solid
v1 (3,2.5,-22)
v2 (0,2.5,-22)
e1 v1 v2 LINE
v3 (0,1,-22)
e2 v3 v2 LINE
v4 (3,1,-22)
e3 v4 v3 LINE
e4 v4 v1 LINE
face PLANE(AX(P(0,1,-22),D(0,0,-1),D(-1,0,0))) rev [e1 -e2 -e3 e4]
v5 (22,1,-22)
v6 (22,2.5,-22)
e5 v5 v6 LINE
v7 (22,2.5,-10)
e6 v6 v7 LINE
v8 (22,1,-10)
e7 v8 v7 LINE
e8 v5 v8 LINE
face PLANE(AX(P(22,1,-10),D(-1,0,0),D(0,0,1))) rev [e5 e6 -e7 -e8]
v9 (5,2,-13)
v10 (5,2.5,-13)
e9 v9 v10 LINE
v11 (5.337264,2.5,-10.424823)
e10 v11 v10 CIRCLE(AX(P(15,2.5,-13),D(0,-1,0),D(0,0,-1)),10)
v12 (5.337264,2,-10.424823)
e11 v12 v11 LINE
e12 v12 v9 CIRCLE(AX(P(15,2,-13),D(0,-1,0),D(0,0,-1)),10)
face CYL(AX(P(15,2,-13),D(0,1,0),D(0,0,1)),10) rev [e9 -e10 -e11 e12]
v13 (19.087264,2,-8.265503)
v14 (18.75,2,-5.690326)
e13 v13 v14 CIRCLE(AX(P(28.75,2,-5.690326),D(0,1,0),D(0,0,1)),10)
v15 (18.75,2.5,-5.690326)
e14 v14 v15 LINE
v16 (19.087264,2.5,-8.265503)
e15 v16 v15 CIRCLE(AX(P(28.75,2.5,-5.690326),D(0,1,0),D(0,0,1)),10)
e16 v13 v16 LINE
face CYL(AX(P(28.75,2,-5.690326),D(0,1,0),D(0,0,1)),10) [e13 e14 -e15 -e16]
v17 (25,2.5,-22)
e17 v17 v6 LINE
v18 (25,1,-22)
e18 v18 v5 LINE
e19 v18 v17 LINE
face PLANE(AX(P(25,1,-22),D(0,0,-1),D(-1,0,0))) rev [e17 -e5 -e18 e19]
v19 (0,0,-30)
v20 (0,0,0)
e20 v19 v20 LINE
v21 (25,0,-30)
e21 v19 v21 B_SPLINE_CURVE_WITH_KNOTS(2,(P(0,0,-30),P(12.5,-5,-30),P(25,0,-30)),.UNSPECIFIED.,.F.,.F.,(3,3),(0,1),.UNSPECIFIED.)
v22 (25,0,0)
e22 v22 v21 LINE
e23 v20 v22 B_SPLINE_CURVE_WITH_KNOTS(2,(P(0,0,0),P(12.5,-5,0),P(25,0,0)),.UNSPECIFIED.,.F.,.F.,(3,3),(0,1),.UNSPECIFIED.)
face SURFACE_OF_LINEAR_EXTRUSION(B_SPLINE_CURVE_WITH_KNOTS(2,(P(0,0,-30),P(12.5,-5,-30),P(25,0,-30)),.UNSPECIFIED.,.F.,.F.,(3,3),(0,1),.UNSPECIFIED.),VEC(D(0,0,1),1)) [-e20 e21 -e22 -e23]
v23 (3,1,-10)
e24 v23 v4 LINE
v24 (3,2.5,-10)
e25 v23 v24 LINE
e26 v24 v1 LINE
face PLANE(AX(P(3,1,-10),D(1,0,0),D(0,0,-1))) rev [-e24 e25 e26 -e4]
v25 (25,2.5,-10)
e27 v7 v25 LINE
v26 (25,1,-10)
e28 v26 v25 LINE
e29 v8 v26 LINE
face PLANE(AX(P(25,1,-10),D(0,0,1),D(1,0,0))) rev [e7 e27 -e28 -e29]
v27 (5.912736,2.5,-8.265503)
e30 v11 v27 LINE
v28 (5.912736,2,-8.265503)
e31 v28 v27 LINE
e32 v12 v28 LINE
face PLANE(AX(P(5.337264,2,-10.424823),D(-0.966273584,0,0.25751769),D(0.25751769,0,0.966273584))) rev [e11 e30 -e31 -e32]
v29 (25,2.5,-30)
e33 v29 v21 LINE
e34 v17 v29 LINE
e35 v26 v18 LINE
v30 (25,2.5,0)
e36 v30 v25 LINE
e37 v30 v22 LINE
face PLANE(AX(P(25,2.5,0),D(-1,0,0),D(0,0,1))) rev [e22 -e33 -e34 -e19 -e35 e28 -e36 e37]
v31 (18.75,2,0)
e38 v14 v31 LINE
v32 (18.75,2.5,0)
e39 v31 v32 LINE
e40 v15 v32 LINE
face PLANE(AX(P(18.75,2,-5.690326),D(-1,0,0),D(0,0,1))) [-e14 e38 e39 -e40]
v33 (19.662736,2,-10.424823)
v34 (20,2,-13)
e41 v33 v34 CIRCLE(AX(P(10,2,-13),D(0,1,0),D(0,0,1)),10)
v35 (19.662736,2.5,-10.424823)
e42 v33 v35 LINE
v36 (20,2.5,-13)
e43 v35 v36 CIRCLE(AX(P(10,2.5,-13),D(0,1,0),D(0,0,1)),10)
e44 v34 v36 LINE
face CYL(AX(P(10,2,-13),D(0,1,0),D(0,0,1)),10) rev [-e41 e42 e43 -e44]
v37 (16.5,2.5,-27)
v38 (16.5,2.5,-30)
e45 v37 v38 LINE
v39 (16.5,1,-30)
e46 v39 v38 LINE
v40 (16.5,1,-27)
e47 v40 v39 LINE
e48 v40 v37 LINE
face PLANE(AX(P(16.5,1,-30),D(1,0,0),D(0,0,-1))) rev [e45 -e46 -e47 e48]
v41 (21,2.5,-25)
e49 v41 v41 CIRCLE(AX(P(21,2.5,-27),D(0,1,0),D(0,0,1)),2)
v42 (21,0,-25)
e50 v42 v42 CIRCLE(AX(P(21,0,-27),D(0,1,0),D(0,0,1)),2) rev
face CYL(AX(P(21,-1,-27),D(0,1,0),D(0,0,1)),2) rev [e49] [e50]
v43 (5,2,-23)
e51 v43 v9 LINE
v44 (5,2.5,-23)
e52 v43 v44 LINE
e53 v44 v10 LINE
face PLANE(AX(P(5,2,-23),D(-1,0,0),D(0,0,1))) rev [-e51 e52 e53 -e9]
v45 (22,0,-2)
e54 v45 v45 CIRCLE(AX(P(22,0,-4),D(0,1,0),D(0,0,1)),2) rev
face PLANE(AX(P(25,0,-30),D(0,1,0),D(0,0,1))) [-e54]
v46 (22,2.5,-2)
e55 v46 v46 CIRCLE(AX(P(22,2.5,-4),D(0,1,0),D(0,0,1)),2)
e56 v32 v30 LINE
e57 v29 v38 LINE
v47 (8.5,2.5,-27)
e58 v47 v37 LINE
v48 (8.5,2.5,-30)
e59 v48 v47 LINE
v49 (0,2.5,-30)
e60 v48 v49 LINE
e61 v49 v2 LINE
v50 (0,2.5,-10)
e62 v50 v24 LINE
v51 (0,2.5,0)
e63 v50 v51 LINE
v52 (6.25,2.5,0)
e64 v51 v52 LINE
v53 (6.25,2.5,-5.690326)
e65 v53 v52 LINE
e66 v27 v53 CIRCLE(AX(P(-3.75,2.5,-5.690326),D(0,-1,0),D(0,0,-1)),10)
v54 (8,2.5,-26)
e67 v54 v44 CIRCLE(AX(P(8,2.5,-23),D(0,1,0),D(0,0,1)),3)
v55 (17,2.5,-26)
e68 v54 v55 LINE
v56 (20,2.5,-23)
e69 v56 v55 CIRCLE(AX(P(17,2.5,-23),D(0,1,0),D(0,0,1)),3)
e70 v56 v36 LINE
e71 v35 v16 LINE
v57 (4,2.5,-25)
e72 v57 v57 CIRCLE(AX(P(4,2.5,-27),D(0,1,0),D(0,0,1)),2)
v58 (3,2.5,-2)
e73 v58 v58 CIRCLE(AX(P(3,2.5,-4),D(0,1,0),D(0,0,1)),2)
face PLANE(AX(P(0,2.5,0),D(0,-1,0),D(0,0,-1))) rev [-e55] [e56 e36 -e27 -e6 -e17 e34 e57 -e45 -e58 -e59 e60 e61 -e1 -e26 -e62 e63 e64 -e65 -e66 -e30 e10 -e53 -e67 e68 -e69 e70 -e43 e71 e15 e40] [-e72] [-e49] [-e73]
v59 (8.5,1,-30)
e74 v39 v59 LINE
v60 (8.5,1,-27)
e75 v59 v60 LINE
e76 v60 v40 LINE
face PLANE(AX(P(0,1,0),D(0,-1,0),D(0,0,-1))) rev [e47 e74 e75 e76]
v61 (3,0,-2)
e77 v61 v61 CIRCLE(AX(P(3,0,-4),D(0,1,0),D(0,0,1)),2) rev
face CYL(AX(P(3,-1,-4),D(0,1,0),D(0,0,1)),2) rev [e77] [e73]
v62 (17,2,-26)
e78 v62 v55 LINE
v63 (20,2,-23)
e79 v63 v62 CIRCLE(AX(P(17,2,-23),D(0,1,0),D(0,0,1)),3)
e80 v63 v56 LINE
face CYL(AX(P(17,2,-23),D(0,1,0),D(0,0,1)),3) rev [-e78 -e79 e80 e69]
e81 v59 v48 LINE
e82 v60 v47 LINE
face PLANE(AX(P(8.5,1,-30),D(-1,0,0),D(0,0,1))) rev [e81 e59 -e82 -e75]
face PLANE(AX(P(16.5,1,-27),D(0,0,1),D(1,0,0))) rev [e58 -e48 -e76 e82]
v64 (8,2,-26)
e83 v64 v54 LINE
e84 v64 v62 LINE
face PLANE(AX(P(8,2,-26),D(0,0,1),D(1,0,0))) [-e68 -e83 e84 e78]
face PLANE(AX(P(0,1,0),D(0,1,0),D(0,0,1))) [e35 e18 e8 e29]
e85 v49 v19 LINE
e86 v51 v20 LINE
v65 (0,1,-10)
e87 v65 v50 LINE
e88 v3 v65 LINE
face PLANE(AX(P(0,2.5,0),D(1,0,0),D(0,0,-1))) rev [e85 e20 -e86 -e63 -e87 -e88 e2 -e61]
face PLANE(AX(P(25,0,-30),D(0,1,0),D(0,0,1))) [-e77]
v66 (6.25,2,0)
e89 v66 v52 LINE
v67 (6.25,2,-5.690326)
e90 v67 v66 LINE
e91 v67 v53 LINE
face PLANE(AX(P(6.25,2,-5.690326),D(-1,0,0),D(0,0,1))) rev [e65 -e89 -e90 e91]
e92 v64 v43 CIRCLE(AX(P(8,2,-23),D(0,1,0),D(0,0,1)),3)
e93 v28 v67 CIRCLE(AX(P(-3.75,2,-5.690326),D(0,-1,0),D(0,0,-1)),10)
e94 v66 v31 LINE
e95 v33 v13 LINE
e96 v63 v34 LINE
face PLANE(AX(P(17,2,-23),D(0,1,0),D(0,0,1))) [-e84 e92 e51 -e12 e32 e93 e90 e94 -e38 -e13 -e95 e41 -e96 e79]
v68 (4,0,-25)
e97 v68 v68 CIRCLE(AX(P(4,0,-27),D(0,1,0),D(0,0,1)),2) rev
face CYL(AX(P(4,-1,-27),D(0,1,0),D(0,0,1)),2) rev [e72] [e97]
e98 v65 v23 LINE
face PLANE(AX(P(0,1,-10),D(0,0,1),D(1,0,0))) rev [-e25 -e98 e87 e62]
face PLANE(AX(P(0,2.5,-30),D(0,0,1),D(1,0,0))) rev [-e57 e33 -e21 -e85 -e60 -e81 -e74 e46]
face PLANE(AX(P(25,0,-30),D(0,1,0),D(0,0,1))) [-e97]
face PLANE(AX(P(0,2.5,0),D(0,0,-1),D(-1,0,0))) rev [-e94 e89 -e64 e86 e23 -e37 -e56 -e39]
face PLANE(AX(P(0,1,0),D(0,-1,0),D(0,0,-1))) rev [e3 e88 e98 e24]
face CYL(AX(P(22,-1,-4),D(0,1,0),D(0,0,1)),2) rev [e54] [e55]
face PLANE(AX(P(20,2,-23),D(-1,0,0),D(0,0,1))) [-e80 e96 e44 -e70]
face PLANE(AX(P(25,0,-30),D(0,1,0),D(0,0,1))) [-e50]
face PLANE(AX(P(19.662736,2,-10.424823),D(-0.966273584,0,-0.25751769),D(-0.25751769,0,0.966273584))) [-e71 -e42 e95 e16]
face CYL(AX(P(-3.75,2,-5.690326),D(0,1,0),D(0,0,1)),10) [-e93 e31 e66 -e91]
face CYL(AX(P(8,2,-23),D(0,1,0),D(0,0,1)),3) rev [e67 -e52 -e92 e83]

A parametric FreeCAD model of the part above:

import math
import FreeCAD as App
import Part
import Sketcher
from FreeCAD import Vector
Q = App.Units.Quantity

doc = App.newDocument("Part")
body = doc.addObject("PartDesign::Body", "Body")

sketch1 = body.newObject("Sketcher::SketchObject", "Sketch")
sketch1.AttachmentSupport = (doc.getObject("XZ_Plane"), [""])
sketch1.MapMode = "FlatFace"
sketch1.addGeometry(Part.LineSegment(Vector(0, -30, 0), Vector(0, 0, 0)), False)
sketch1.addGeometry(Part.LineSegment(Vector(0, 0, 0), Vector(25, 0, 0)), False)
sketch1.addGeometry(Part.LineSegment(Vector(25, 0, 0), Vector(25, -30, 0)), False)
sketch1.addGeometry(Part.LineSegment(Vector(25, -30, 0), Vector(0, -30, 0)), False)
sketch1.addConstraint(Sketcher.Constraint("Coincident", 0, 2, 1, 1))
sketch1.addConstraint(Sketcher.Constraint("Coincident", 1, 2, 2, 1))
sketch1.addConstraint(Sketcher.Constraint("Coincident", 2, 2, 3, 1))
sketch1.addConstraint(Sketcher.Constraint("Coincident", 3, 2, 0, 1))
sketch1.addConstraint(Sketcher.Constraint("Vertical", 0))
sketch1.addConstraint(Sketcher.Constraint("Horizontal", 1))
sketch1.addConstraint(Sketcher.Constraint("Vertical", 2))
sketch1.addConstraint(Sketcher.Constraint("Horizontal", 3))
sketch1.addConstraint(Sketcher.Constraint("Coincident", 0, 2, -1, 1))
sketch1.addConstraint(Sketcher.Constraint("DistanceX", 1, 1, 1, 2, Q("25 mm")))
sketch1.addConstraint(Sketcher.Constraint("DistanceY", 0, 1, 0, 2, Q("30 mm")))
pad1 = body.newObject("PartDesign::Pad", "Pad")
pad1.Profile = sketch1
pad1.Length = 2.5
pad1.Reversed = True

sketch2 = body.newObject("Sketcher::SketchObject", "Sketch001")
sketch2.AttachmentSupport = (doc.getObject("XZ_Plane"), [""])
sketch2.MapMode = "FlatFace"
sketch2.AttachmentOffset = App.Placement(Vector(0, 0, -2.5), App.Rotation())
sketch2.addGeometry(Part.LineSegment(Vector(17, -26, 0), Vector(8, -26, 0)), False)
sketch2.addGeometry(Part.ArcOfCircle(Part.Circle(Vector(8, -23, 0), Vector(0, 0, 1), 3), math.radians(180), math.radians(270)), False)
sketch2.addGeometry(Part.LineSegment(Vector(5, -23, 0), Vector(5, -13, 0)), False)
sketch2.addGeometry(Part.ArcOfCircle(Part.Circle(Vector(15, -13, 0), Vector(0, 0, 1), 10), math.radians(165.08), math.radians(180)), False)
sketch2.addGeometry(Part.LineSegment(Vector(5.3, -10.4, 0), Vector(5.9, -8.3, 0)), False)
sketch2.addGeometry(Part.ArcOfCircle(Part.Circle(Vector(-3.7, -5.7, 0), Vector(0, 0, 1), 10), math.radians(-14.92), math.radians(0)), False)
sketch2.addGeometry(Part.LineSegment(Vector(6.2, -5.7, 0), Vector(6.2, 0, 0)), False)
sketch2.addGeometry(Part.LineSegment(Vector(6.2, 0, 0), Vector(18.8, 0, 0)), False)
sketch2.addGeometry(Part.LineSegment(Vector(18.8, 0, 0), Vector(18.8, -5.7, 0)), False)
sketch2.addGeometry(Part.ArcOfCircle(Part.Circle(Vector(28.7, -5.7, 0), Vector(0, 0, 1), 10), math.radians(180), math.radians(194.92)), False)
sketch2.addGeometry(Part.LineSegment(Vector(19.1, -8.3, 0), Vector(19.7, -10.4, 0)), False)
sketch2.addGeometry(Part.ArcOfCircle(Part.Circle(Vector(10, -13, 0), Vector(0, 0, 1), 10), math.radians(0), math.radians(14.92)), False)
sketch2.addGeometry(Part.LineSegment(Vector(20, -13, 0), Vector(20, -23, 0)), False)
sketch2.addGeometry(Part.ArcOfCircle(Part.Circle(Vector(17, -23, 0), Vector(0, 0, 1), 3), math.radians(-90), math.radians(0)), False)
sketch2.addConstraint(Sketcher.Constraint("Tangent", 0, 2, 1, 2))
sketch2.addConstraint(Sketcher.Constraint("Tangent", 1, 1, 2, 1))
sketch2.addConstraint(Sketcher.Constraint("Tangent", 2, 2, 3, 2))
sketch2.addConstraint(Sketcher.Constraint("Tangent", 3, 1, 4, 1))
sketch2.addConstraint(Sketcher.Constraint("Tangent", 4, 2, 5, 1))
sketch2.addConstraint(Sketcher.Constraint("Tangent", 5, 2, 6, 1))
sketch2.addConstraint(Sketcher.Constraint("Coincident", 6, 2, 7, 1))
sketch2.addConstraint(Sketcher.Constraint("Coincident", 7, 2, 8, 1))
sketch2.addConstraint(Sketcher.Constraint("Tangent", 8, 2, 9, 1))
sketch2.addConstraint(Sketcher.Constraint("Tangent", 9, 2, 10, 1))
sketch2.addConstraint(Sketcher.Constraint("Tangent", 10, 2, 11, 2))
sketch2.addConstraint(Sketcher.Constraint("Tangent", 11, 1, 12, 1))
sketch2.addConstraint(Sketcher.Constraint("Tangent", 12, 2, 13, 2))
sketch2.addConstraint(Sketcher.Constraint("Tangent", 13, 1, 0, 1))
sketch2.addConstraint(Sketcher.Constraint("Horizontal", 0))
sketch2.addConstraint(Sketcher.Constraint("Vertical", 2))
sketch2.addConstraint(Sketcher.Constraint("Vertical", 6))
sketch2.addConstraint(Sketcher.Constraint("Horizontal", 7))
sketch2.addConstraint(Sketcher.Constraint("Vertical", 8))
sketch2.addConstraint(Sketcher.Constraint("Vertical", 12))
sketch2.addConstraint(Sketcher.Constraint("Equal", 3, 5))
sketch2.addConstraint(Sketcher.Constraint("Equal", 5, 9))
sketch2.addConstraint(Sketcher.Constraint("Equal", 9, 11))
sketch2.addConstraint(Sketcher.Constraint("Equal", 1, 13))
sketch2.addConstraint(Sketcher.Constraint("PointOnObject", 6, 2, -1))
sketch2.addConstraint(Sketcher.Constraint("Horizontal", 5, 3, 9, 3))
sketch2.addConstraint(Sketcher.Constraint("Horizontal", 3, 3, 11, 3))
sketch2.addConstraint(Sketcher.Constraint("Horizontal", 4, 2, 9, 2))
sketch2.addConstraint(Sketcher.Constraint("Radius", 1, Q("3 mm")))
sketch2.addConstraint(Sketcher.Constraint("Radius", 3, Q("10 mm")))
sketch2.addConstraint(Sketcher.Constraint("DistanceX", 0, 2, 0, 1, Q("9 mm")))
sketch2.addConstraint(Sketcher.Constraint("DistanceY", 2, 1, 2, 2, Q("10 mm")))
sketch2.addConstraint(Sketcher.Constraint("DistanceX", 7, 1, 7, 2, Q("12.5 mm")))
sketch2.addConstraint(Sketcher.Constraint("DistanceX", -1, 1, 1, 3, Q("8 mm")))
sketch2.addConstraint(Sketcher.Constraint("DistanceY", 1, 3, -1, 1, Q("23 mm")))
sketch2.addConstraint(Sketcher.Constraint("DistanceY", 6, 1, 6, 2, Q("5.690326 mm")))
pocket1 = body.newObject("PartDesign::Pocket", "Pocket")
pocket1.Profile = sketch2
pocket1.Length = 0.5
pocket1.Reversed = True

sketch3 = body.newObject("Sketcher::SketchObject", "Sketch002")
sketch3.AttachmentSupport = (doc.getObject("XZ_Plane"), [""])
sketch3.MapMode = "FlatFace"
sketch3.AttachmentOffset = App.Placement(Vector(0, 0, -2.5), App.Rotation())
sketch3.addGeometry(Part.Circle(Vector(21, -27, 0), Vector(0, 0, 1), 2), False)
sketch3.addGeometry(Part.Circle(Vector(4, -27, 0), Vector(0, 0, 1), 2), False)
sketch3.addGeometry(Part.Circle(Vector(3, -4, 0), Vector(0, 0, 1), 2), False)
sketch3.addGeometry(Part.Circle(Vector(22, -4, 0), Vector(0, 0, 1), 2), False)
sketch3.addConstraint(Sketcher.Constraint("Equal", 0, 1))
sketch3.addConstraint(Sketcher.Constraint("Equal", 1, 2))
sketch3.addConstraint(Sketcher.Constraint("Equal", 2, 3))
sketch3.addConstraint(Sketcher.Constraint("Horizontal", 0, 3, 1, 3))
sketch3.addConstraint(Sketcher.Constraint("Horizontal", 2, 3, 3, 3))
sketch3.addConstraint(Sketcher.Constraint("Diameter", 0, Q("4 mm")))
sketch3.addConstraint(Sketcher.Constraint("DistanceX", -1, 1, 0, 3, Q("21 mm")))
sketch3.addConstraint(Sketcher.Constraint("DistanceY", 0, 3, -1, 1, Q("27 mm")))
sketch3.addConstraint(Sketcher.Constraint("DistanceX", -1, 1, 1, 3, Q("4 mm")))
sketch3.addConstraint(Sketcher.Constraint("DistanceX", -1, 1, 2, 3, Q("3 mm")))
sketch3.addConstraint(Sketcher.Constraint("DistanceY", 2, 3, -1, 1, Q("4 mm")))
sketch3.addConstraint(Sketcher.Constraint("DistanceX", -1, 1, 3, 3, Q("22 mm")))
pocket2 = body.newObject("PartDesign::Pocket", "Pocket001")
pocket2.Profile = sketch3
pocket2.Length = 3.5
pocket2.Reversed = True

sketch4 = body.newObject("Sketcher::SketchObject", "Sketch003")
sketch4.AttachmentSupport = (doc.getObject("XY_Plane"), [""])
sketch4.MapMode = "FlatFace"
sketch4.addGeometry(Part.LineSegment(Vector(25, 0, 0), Vector(0, 0, 0)), False)
sketch4.addGeometry(Part.BSplineCurve([Vector(25, 0, 0), Vector(12.5, -5, 0), Vector(0, 0, 0)], [3, 3], [0, 1], False, 2, [1, 1, 1], False), False)
sketch4.addConstraint(Sketcher.Constraint("Block", 1))
sketch4.addConstraint(Sketcher.Constraint("Coincident", 0, 1, 1, 1))
sketch4.addConstraint(Sketcher.Constraint("Coincident", 1, 2, 0, 2))
pad2 = body.newObject("PartDesign::Pad", "Pad001")
pad2.Profile = sketch4
pad2.Length = 30
pad2.Reversed = True

sketch5 = body.newObject("Sketcher::SketchObject", "Sketch004")
sketch5.AttachmentSupport = (doc.getObject("XZ_Plane"), [""])
sketch5.MapMode = "FlatFace"
sketch5.AttachmentOffset = App.Placement(Vector(0, 0, -2.5), App.Rotation())
sketch5.addGeometry(Part.LineSegment(Vector(8.5, -30, 0), Vector(8.5, -27, 0)), False)
sketch5.addGeometry(Part.LineSegment(Vector(8.5, -27, 0), Vector(16.5, -27, 0)), False)
sketch5.addGeometry(Part.LineSegment(Vector(16.5, -27, 0), Vector(16.5, -30, 0)), False)
sketch5.addGeometry(Part.LineSegment(Vector(16.5, -30, 0), Vector(8.5, -30, 0)), False)
sketch5.addGeometry(Part.LineSegment(Vector(22, -22, 0), Vector(22, -10, 0)), False)
sketch5.addGeometry(Part.LineSegment(Vector(22, -10, 0), Vector(25, -10, 0)), False)
sketch5.addGeometry(Part.LineSegment(Vector(25, -10, 0), Vector(25, -22, 0)), False)
sketch5.addGeometry(Part.LineSegment(Vector(25, -22, 0), Vector(22, -22, 0)), False)
sketch5.addGeometry(Part.LineSegment(Vector(0, -22, 0), Vector(0, -10, 0)), False)
sketch5.addGeometry(Part.LineSegment(Vector(0, -10, 0), Vector(3, -10, 0)), False)
sketch5.addGeometry(Part.LineSegment(Vector(3, -10, 0), Vector(3, -22, 0)), False)
sketch5.addGeometry(Part.LineSegment(Vector(3, -22, 0), Vector(0, -22, 0)), False)
sketch5.addConstraint(Sketcher.Constraint("Coincident", 0, 2, 1, 1))
sketch5.addConstraint(Sketcher.Constraint("Coincident", 1, 2, 2, 1))
sketch5.addConstraint(Sketcher.Constraint("Coincident", 2, 2, 3, 1))
sketch5.addConstraint(Sketcher.Constraint("Coincident", 3, 2, 0, 1))
sketch5.addConstraint(Sketcher.Constraint("Coincident", 4, 2, 5, 1))
sketch5.addConstraint(Sketcher.Constraint("Coincident", 5, 2, 6, 1))
sketch5.addConstraint(Sketcher.Constraint("Coincident", 6, 2, 7, 1))
sketch5.addConstraint(Sketcher.Constraint("Coincident", 7, 2, 4, 1))
sketch5.addConstraint(Sketcher.Constraint("Coincident", 8, 2, 9, 1))
sketch5.addConstraint(Sketcher.Constraint("Coincident", 9, 2, 10, 1))
sketch5.addConstraint(Sketcher.Constraint("Coincident", 10, 2, 11, 1))
sketch5.addConstraint(Sketcher.Constraint("Coincident", 11, 2, 8, 1))
sketch5.addConstraint(Sketcher.Constraint("Vertical", 0))
sketch5.addConstraint(Sketcher.Constraint("Horizontal", 1))
sketch5.addConstraint(Sketcher.Constraint("Vertical", 2))
sketch5.addConstraint(Sketcher.Constraint("Horizontal", 3))
sketch5.addConstraint(Sketcher.Constraint("Vertical", 4))
sketch5.addConstraint(Sketcher.Constraint("Horizontal", 5))
sketch5.addConstraint(Sketcher.Constraint("Vertical", 6))
sketch5.addConstraint(Sketcher.Constraint("Horizontal", 7))
sketch5.addConstraint(Sketcher.Constraint("Vertical", 8))
sketch5.addConstraint(Sketcher.Constraint("Horizontal", 9))
sketch5.addConstraint(Sketcher.Constraint("Vertical", 10))
sketch5.addConstraint(Sketcher.Constraint("Horizontal", 11))
sketch5.addConstraint(Sketcher.Constraint("PointOnObject", 8, 2, -2))
sketch5.addConstraint(Sketcher.Constraint("Horizontal", 5, 2, 8, 2))
sketch5.addConstraint(Sketcher.Constraint("Horizontal", 7, 2, 10, 2))
sketch5.addConstraint(Sketcher.Constraint("Equal", 7, 9))
sketch5.addConstraint(Sketcher.Constraint("Equal", 11, 0))
sketch5.addConstraint(Sketcher.Constraint("DistanceX", 1, 1, 1, 2, Q("8 mm")))
sketch5.addConstraint(Sketcher.Constraint("DistanceX", 5, 1, 5, 2, Q("3 mm")))
sketch5.addConstraint(Sketcher.Constraint("DistanceY", 4, 1, 4, 2, Q("12 mm")))
sketch5.addConstraint(Sketcher.Constraint("DistanceY", 0, 2, -1, 1, Q("27 mm")))
sketch5.addConstraint(Sketcher.Constraint("DistanceX", -1, 1, 4, 2, Q("22 mm")))
sketch5.addConstraint(Sketcher.Constraint("DistanceY", 4, 2, -1, 1, Q("10 mm")))
sketch5.addConstraint(Sketcher.Constraint("DistanceX", -1, 1, 0, 2, Q("8.5 mm")))
pocket3 = body.newObject("PartDesign::Pocket", "Pocket002")
pocket3.Profile = sketch5
pocket3.Length = 1.5
pocket3.Reversed = True

doc.recompute()
